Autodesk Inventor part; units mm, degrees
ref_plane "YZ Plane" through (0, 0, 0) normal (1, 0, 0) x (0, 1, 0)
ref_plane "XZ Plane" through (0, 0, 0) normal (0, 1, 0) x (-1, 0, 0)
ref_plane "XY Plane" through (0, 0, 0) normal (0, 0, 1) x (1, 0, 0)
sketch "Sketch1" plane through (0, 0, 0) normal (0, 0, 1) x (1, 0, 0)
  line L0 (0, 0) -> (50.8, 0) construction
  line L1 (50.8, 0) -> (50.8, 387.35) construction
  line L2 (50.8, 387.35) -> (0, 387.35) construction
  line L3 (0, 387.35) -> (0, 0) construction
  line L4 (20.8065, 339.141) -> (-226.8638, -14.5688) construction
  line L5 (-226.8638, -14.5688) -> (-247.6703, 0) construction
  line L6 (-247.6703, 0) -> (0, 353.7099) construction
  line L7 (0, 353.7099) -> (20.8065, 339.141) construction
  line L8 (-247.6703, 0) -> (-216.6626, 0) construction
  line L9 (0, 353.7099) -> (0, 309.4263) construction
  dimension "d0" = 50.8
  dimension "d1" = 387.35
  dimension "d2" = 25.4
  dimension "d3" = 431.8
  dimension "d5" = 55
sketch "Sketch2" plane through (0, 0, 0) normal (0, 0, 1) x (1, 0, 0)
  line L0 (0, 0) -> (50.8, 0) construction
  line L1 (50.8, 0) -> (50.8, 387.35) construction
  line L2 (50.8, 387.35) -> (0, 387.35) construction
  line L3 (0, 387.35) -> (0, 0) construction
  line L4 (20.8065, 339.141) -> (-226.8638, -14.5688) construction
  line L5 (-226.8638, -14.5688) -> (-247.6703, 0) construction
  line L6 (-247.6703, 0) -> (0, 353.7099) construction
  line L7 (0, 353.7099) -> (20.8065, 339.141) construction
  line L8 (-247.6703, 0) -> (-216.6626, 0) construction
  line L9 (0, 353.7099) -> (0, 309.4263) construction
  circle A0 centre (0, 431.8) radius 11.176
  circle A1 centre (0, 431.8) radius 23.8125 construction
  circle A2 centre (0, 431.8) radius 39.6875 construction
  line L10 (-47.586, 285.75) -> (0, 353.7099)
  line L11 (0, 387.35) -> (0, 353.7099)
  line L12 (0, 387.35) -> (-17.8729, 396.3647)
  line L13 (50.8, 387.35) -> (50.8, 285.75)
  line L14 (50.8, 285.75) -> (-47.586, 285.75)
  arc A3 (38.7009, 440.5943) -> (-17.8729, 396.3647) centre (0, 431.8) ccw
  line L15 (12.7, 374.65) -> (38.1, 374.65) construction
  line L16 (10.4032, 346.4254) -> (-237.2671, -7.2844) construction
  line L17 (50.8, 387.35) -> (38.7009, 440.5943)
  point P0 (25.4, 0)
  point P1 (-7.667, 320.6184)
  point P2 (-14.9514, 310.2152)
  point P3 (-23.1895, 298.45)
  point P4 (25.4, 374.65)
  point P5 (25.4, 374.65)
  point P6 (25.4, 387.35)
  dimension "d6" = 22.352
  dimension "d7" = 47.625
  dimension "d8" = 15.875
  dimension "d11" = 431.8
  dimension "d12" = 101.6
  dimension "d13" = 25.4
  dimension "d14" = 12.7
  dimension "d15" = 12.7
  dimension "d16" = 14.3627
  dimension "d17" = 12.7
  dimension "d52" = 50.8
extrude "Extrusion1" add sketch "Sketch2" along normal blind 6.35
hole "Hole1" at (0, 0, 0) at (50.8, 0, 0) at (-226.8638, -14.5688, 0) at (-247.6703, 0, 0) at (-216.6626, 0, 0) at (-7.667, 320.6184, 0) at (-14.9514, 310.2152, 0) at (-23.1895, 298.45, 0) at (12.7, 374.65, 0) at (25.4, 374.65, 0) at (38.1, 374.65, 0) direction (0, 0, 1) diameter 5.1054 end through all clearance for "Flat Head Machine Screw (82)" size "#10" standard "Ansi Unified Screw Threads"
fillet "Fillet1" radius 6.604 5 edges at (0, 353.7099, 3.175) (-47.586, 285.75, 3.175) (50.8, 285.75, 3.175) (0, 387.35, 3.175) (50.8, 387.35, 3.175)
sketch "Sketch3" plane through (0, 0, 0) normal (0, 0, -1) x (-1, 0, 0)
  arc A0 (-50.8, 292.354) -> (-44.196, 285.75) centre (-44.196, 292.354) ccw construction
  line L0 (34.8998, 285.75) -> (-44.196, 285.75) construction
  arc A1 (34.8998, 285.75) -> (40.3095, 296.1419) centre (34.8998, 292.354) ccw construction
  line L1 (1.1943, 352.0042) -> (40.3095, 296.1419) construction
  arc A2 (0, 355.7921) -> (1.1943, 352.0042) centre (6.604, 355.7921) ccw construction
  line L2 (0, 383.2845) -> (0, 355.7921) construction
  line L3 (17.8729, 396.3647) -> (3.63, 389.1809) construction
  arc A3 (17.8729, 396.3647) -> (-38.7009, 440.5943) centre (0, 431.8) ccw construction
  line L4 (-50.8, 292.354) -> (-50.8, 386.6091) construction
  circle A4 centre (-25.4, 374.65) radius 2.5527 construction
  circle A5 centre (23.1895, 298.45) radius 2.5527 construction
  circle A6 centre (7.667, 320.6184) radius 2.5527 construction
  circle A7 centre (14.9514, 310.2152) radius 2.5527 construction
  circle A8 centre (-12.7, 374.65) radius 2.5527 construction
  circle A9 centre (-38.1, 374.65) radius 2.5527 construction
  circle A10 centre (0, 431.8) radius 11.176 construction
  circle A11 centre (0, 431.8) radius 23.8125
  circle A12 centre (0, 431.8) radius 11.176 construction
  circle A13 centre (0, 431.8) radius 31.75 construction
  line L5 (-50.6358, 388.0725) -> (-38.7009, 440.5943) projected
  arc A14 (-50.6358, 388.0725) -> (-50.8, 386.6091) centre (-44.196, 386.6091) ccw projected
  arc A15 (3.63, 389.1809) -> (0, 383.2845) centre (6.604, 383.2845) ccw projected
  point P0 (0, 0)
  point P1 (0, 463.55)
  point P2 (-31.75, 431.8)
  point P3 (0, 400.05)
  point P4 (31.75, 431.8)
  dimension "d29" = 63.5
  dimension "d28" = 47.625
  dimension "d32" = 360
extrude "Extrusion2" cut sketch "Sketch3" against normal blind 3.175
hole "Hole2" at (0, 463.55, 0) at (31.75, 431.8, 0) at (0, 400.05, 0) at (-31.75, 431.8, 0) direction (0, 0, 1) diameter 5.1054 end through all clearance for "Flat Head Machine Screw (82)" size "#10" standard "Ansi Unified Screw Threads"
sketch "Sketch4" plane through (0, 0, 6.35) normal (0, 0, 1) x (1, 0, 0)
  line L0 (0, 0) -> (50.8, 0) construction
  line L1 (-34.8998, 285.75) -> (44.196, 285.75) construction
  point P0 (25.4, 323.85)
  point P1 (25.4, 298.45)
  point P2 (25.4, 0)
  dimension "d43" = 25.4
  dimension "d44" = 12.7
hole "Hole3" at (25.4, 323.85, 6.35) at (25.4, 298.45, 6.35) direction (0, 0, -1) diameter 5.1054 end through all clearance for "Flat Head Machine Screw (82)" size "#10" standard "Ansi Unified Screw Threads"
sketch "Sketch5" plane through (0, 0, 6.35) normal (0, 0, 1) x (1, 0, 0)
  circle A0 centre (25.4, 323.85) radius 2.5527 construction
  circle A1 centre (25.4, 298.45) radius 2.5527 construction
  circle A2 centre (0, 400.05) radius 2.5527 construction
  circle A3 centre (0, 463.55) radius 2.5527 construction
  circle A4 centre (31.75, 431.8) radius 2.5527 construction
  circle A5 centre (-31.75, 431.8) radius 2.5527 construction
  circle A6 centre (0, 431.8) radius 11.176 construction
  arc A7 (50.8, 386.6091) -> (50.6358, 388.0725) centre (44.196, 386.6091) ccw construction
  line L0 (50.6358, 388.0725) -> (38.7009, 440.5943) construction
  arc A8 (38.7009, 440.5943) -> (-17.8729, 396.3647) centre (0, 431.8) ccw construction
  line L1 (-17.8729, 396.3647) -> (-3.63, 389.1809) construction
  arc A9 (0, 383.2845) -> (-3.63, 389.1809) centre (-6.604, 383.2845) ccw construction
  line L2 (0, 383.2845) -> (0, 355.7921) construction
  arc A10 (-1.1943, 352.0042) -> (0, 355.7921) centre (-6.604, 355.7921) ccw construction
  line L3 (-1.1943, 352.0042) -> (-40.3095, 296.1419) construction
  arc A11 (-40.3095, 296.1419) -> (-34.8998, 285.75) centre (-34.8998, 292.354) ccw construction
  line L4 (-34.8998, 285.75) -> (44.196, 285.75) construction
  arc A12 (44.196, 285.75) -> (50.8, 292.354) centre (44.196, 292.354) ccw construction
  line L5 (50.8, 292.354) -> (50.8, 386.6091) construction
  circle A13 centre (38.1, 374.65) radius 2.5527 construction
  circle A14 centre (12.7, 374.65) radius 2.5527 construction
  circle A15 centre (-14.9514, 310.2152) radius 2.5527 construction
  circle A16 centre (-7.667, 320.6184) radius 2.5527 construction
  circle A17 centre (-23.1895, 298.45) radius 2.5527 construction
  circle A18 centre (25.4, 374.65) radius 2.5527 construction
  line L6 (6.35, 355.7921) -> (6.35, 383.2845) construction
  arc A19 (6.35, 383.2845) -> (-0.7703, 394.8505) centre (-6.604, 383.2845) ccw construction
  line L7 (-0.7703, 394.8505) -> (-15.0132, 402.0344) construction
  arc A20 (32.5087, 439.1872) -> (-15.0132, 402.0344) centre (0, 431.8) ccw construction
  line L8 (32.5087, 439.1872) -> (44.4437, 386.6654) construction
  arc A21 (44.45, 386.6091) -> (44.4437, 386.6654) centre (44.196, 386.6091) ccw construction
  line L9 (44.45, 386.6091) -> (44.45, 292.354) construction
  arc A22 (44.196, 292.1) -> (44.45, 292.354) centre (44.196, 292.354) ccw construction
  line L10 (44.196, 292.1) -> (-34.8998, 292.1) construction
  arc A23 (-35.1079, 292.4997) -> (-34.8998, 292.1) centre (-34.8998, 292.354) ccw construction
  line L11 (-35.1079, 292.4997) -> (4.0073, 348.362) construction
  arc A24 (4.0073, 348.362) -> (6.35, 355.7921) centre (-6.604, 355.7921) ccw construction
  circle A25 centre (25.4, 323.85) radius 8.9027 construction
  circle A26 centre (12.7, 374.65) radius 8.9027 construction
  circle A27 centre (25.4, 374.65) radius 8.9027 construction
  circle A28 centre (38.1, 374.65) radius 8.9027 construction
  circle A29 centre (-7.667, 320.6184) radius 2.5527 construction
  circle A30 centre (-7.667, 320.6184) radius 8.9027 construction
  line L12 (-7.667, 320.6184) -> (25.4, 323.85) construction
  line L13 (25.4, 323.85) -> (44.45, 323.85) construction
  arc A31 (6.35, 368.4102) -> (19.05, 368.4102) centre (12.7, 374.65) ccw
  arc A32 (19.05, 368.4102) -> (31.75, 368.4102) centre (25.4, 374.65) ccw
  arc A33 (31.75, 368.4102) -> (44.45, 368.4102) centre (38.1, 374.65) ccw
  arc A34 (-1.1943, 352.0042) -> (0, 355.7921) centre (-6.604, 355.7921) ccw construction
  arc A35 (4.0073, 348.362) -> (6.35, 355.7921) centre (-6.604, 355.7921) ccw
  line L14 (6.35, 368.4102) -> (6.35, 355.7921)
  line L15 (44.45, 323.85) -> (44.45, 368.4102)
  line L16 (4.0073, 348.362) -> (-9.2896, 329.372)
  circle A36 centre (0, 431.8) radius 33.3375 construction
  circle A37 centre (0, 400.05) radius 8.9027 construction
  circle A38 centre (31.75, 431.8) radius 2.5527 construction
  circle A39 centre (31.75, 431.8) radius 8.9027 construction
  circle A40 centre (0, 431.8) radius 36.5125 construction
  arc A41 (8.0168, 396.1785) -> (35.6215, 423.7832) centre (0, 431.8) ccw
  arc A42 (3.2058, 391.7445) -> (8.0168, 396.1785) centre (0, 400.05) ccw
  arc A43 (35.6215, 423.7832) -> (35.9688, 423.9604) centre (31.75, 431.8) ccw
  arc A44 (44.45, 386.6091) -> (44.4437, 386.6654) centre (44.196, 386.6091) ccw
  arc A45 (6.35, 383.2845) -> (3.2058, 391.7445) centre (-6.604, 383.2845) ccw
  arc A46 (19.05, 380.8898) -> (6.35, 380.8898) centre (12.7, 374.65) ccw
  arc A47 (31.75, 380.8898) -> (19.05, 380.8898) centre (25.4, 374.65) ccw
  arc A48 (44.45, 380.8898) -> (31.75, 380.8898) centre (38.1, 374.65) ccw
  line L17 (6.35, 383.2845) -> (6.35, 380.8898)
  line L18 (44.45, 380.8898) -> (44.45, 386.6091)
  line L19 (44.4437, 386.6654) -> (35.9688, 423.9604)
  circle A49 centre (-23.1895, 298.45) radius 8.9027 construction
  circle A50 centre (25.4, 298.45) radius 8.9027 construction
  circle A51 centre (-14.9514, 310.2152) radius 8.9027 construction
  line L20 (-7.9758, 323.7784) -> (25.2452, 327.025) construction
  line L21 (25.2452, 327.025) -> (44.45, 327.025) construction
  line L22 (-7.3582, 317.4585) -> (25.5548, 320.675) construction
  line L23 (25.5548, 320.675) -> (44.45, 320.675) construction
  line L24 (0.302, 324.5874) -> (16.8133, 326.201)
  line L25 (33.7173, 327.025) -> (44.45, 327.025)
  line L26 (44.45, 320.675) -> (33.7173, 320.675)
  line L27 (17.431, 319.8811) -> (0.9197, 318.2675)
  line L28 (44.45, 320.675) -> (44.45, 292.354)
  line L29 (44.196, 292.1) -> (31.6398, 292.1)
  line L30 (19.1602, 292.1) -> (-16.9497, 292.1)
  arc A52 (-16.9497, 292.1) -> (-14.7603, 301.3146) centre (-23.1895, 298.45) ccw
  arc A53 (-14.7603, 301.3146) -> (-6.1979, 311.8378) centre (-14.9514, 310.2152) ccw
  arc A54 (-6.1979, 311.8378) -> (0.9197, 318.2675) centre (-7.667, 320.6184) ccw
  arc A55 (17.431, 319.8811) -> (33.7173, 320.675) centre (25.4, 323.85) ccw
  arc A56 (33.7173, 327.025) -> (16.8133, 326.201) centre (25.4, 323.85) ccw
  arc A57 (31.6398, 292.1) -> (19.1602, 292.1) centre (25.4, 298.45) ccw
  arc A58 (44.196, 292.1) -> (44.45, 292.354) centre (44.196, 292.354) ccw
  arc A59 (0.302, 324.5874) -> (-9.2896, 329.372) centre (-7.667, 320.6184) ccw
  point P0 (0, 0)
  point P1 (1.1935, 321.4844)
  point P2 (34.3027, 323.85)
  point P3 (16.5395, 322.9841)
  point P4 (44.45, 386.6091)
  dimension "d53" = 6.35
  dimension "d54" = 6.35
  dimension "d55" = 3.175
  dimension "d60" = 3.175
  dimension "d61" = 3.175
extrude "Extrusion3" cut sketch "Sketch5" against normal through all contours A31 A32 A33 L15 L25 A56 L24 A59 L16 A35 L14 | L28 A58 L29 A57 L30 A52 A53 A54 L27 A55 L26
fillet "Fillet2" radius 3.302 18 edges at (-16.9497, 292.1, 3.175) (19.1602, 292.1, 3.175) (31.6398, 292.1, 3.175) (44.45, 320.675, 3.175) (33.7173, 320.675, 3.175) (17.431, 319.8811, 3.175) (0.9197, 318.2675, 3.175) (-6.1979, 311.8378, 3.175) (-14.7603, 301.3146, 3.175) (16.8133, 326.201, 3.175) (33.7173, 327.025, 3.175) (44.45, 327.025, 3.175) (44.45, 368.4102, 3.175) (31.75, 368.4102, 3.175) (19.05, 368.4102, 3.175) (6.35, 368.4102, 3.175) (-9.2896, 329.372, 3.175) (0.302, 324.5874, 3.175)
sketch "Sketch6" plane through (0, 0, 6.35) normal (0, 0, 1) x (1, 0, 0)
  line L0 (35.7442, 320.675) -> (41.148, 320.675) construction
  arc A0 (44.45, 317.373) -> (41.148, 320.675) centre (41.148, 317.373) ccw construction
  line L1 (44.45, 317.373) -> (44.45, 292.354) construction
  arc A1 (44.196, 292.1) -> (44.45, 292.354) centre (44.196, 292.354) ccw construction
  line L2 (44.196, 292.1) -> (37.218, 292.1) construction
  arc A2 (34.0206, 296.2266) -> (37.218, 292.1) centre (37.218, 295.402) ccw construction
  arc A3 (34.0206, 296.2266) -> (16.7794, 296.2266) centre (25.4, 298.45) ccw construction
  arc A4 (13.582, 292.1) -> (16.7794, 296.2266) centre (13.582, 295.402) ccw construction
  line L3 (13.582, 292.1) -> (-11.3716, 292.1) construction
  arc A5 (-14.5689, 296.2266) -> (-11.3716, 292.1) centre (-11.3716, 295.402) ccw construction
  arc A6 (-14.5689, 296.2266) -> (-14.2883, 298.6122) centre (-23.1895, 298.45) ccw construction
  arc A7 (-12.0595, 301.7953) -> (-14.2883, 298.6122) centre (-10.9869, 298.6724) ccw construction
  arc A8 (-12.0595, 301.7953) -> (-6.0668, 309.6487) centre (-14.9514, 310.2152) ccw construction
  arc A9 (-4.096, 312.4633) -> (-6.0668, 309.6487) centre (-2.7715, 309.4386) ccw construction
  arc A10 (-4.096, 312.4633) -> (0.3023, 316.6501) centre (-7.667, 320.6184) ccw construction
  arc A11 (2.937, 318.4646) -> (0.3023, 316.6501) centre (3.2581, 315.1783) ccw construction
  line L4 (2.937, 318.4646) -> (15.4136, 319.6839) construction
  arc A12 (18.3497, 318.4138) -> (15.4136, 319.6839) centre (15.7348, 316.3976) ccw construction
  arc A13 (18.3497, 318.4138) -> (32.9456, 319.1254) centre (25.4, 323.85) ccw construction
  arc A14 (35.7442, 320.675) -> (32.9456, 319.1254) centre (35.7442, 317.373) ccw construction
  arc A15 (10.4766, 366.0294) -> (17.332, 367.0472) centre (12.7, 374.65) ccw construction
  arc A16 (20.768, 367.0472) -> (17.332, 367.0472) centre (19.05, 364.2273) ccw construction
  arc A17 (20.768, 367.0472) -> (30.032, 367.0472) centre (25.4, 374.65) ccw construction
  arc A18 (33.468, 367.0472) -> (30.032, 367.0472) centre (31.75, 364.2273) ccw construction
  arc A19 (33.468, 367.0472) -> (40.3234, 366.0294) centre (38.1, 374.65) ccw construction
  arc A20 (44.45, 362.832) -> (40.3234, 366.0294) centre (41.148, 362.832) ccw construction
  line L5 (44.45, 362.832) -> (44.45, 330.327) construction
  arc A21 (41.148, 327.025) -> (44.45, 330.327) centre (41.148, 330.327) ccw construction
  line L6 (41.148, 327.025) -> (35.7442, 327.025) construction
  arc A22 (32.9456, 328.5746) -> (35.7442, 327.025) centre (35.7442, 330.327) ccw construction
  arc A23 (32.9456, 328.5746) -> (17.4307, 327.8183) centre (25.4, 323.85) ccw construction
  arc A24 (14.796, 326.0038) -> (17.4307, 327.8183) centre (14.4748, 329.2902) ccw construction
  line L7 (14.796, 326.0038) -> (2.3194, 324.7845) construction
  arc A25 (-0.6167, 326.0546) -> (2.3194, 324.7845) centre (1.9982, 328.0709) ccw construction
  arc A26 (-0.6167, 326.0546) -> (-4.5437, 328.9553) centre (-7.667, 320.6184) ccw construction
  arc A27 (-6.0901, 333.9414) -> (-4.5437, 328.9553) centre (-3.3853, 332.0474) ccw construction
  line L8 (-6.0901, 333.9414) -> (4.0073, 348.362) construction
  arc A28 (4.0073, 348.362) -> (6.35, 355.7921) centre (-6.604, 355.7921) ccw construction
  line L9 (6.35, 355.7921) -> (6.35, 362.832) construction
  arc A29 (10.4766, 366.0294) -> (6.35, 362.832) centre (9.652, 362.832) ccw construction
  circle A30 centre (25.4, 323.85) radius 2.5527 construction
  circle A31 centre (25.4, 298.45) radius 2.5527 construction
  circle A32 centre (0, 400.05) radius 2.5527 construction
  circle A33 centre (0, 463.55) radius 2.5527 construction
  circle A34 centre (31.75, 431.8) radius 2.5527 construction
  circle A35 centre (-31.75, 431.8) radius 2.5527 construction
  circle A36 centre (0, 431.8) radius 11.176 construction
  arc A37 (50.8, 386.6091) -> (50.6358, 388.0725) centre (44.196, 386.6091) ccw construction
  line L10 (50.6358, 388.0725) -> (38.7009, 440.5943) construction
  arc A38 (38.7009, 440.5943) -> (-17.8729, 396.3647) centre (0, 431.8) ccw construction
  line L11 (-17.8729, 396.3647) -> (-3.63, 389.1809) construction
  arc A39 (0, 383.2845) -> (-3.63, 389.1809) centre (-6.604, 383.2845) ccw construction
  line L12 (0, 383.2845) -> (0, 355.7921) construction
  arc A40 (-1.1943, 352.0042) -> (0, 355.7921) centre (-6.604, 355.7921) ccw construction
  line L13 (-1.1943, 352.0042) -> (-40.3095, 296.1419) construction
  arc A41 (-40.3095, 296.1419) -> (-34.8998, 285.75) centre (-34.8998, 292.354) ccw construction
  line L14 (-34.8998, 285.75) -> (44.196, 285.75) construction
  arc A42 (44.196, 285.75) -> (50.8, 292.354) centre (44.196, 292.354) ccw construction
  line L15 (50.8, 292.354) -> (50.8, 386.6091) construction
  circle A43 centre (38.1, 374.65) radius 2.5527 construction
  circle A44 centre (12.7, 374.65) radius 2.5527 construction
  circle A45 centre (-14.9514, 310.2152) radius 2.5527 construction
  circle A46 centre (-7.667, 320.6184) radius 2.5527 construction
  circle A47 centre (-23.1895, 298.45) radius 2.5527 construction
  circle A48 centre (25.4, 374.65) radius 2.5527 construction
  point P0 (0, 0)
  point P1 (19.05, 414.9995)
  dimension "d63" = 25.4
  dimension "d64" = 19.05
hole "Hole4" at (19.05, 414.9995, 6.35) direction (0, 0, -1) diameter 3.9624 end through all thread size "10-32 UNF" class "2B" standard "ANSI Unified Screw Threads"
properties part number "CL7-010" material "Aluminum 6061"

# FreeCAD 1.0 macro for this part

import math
import FreeCAD as App
import Part
import Sketcher
from FreeCAD import Vector
Q = App.Units.Quantity


def edges_at(feature, points):
    """Names of the edges that pass closest to the given points."""
    edges = feature.Shape.Edges
    near = lambda p: min(range(len(edges)), key=lambda i: edges[i].distToShape(Part.Vertex(*p))[0])
    return sorted({f"Edge{near(p) + 1}" for p in points})

doc = App.newDocument("Part")
body = doc.addObject("PartDesign::Body", "Body")

sketch1 = body.newObject("Sketcher::SketchObject", "Sketch")
sketch1.AttachmentSupport = (doc.getObject("XY_Plane"), [""])
sketch1.MapMode = "FlatFace"
sketch1.addGeometry(Part.LineSegment(Vector(0, 354, 0), Vector(-48, 286, 0)), False)
sketch1.addGeometry(Part.LineSegment(Vector(-48, 286, 0), Vector(51, 286, 0)), False)
sketch1.addGeometry(Part.LineSegment(Vector(51, 286, 0), Vector(51, 387, 0)), False)
sketch1.addGeometry(Part.LineSegment(Vector(51, 387, 0), Vector(39, 441, 0)), False)
sketch1.addGeometry(Part.ArcOfCircle(Part.Circle(Vector(0, 432, 0), Vector(0, 0, 1), 40), math.radians(13), math.radians(243)), False)
sketch1.addGeometry(Part.LineSegment(Vector(-18, 396, 0), Vector(0, 387, 0)), False)
sketch1.addGeometry(Part.LineSegment(Vector(0, 387, 0), Vector(0, 354, 0)), False)
sketch1.addGeometry(Part.Circle(Vector(0, 432, 0), Vector(0, 0, 1), 11), False)
sketch1.addConstraint(Sketcher.Constraint("Coincident", 0, 2, 1, 1))
sketch1.addConstraint(Sketcher.Constraint("Coincident", 1, 2, 2, 1))
sketch1.addConstraint(Sketcher.Constraint("Coincident", 2, 2, 3, 1))
sketch1.addConstraint(Sketcher.Constraint("Tangent", 3, 2, 4, 1))
sketch1.addConstraint(Sketcher.Constraint("Tangent", 4, 2, 5, 1))
sketch1.addConstraint(Sketcher.Constraint("Coincident", 5, 2, 6, 1))
sketch1.addConstraint(Sketcher.Constraint("Coincident", 6, 2, 0, 1))
sketch1.addConstraint(Sketcher.Constraint("Horizontal", 1))
sketch1.addConstraint(Sketcher.Constraint("Vertical", 2))
sketch1.addConstraint(Sketcher.Constraint("Vertical", 6))
sketch1.addConstraint(Sketcher.Constraint("Coincident", 7, 3, 4, 3))
sketch1.addConstraint(Sketcher.Constraint("PointOnObject", 4, 3, -2))
sketch1.addConstraint(Sketcher.Constraint("PointOnObject", 5, 2, -2))
sketch1.addConstraint(Sketcher.Constraint("Horizontal", 2, 2, 5, 2))
sketch1.addConstraint(Sketcher.Constraint("Diameter", 7, Q("0.88 in")))
sketch1.addConstraint(Sketcher.Constraint("DistanceY", 2, 1, 2, 2, Q("4 in")))
sketch1.addConstraint(Sketcher.Constraint("DistanceY", -1, 1, 4, 3, Q("17 in")))
sketch1.addConstraint(Sketcher.Constraint("DistanceX", -1, 1, 1, 2, Q("2 in")))
sketch1.addConstraint(Sketcher.Constraint("Angle", 0, Q("-125 deg")))
sketch1.addConstraint(Sketcher.Constraint("Radius", 4, Q("1.5625 in")))
sketch1.addConstraint(Sketcher.Constraint("DistanceY", -1, 1, 0, 2, Q("11.25 in")))
sketch1.addConstraint(Sketcher.Constraint("DistanceX", 1, 1, 1, 2, Q("98.386 mm")))
pad1 = body.newObject("PartDesign::Pad", "Pad")
pad1.Profile = sketch1
pad1.Length = Q("0.25 in")

sketch2 = body.newObject("Sketcher::SketchObject", "Sketch001")
sketch2.AttachmentSupport = (doc.getObject("XY_Plane"), [""])
sketch2.MapMode = "FlatFace"
sketch2.addGeometry(Part.Circle(Vector(0, 0, 0), Vector(0, 0, 1), 2.6), False)
sketch2.addGeometry(Part.Circle(Vector(50.8, 0, 0), Vector(0, 0, 1), 2.6), False)
sketch2.addGeometry(Part.Circle(Vector(-226.9, -14.6, 0), Vector(0, 0, 1), 2.6), False)
sketch2.addGeometry(Part.Circle(Vector(-247.7, 0, 0), Vector(0, 0, 1), 2.6), False)
sketch2.addGeometry(Part.Circle(Vector(-216.7, 0, 0), Vector(0, 0, 1), 2.6), False)
sketch2.addGeometry(Part.Circle(Vector(-7.7, 320.6, 0), Vector(0, 0, 1), 2.6), False)
sketch2.addGeometry(Part.Circle(Vector(-15, 310.2, 0), Vector(0, 0, 1), 2.6), False)
sketch2.addGeometry(Part.Circle(Vector(-23.2, 298.4, 0), Vector(0, 0, 1), 2.6), False)
sketch2.addGeometry(Part.Circle(Vector(12.7, 374.6, 0), Vector(0, 0, 1), 2.6), False)
sketch2.addGeometry(Part.Circle(Vector(25.4, 374.6, 0), Vector(0, 0, 1), 2.6), False)
sketch2.addGeometry(Part.Circle(Vector(38.1, 374.6, 0), Vector(0, 0, 1), 2.6), False)
sketch2.addConstraint(Sketcher.Constraint("Coincident", 0, 3, -1, 1))
sketch2.addConstraint(Sketcher.Constraint("Equal", 0, 1))
sketch2.addConstraint(Sketcher.Constraint("Equal", 1, 2))
sketch2.addConstraint(Sketcher.Constraint("Equal", 2, 3))
sketch2.addConstraint(Sketcher.Constraint("Equal", 3, 4))
sketch2.addConstraint(Sketcher.Constraint("Equal", 4, 5))
sketch2.addConstraint(Sketcher.Constraint("Equal", 5, 6))
sketch2.addConstraint(Sketcher.Constraint("Equal", 6, 7))
sketch2.addConstraint(Sketcher.Constraint("Equal", 7, 8))
sketch2.addConstraint(Sketcher.Constraint("Equal", 8, 9))
sketch2.addConstraint(Sketcher.Constraint("Equal", 9, 10))
sketch2.addConstraint(Sketcher.Constraint("PointOnObject", 1, 3, -1))
sketch2.addConstraint(Sketcher.Constraint("PointOnObject", 3, 3, -1))
sketch2.addConstraint(Sketcher.Constraint("PointOnObject", 4, 3, -1))
sketch2.addConstraint(Sketcher.Constraint("Horizontal", 8, 3, 9, 3))
sketch2.addConstraint(Sketcher.Constraint("Horizontal", 9, 3, 10, 3))
sketch2.addConstraint(Sketcher.Constraint("Diameter", 0, Q("0.201 in")))
sketch2.addConstraint(Sketcher.Constraint("DistanceX", -1, 1, 1, 3, Q("2 in")))
sketch2.addConstraint(Sketcher.Constraint("DistanceX", -1, 1, 9, 3, Q("1 in")))
sketch2.addConstraint(Sketcher.Constraint("DistanceY", 7, 3, 8, 3, Q("3 in")))
sketch2.addConstraint(Sketcher.Constraint("DistanceX", 8, 3, 10, 3, Q("1 in")))
sketch2.addConstraint(Sketcher.Constraint("DistanceX", -1, 1, 8, 3, Q("0.5 in")))
sketch2.addConstraint(Sketcher.Constraint("DistanceY", -1, 1, 7, 3, Q("11.75 in")))
sketch2.addConstraint(Sketcher.Constraint("DistanceX", 2, 3, 6, 3, Q("8.343 in")))
sketch2.addConstraint(Sketcher.Constraint("DistanceX", 3, 3, -1, 1, Q("9.7508 in")))
sketch2.addConstraint(Sketcher.Constraint("DistanceY", -1, 1, 6, 3, Q("12.2132 in")))
sketch2.addConstraint(Sketcher.Constraint("DistanceX", 2, 3, 5, 3, Q("8.6298 in")))
sketch2.addConstraint(Sketcher.Constraint("DistanceX", 2, 3, -1, 1, Q("226.8638 mm")))
sketch2.addConstraint(Sketcher.Constraint("DistanceY", 2, 3, -1, 1, Q("14.5688 mm")))
sketch2.addConstraint(Sketcher.Constraint("DistanceX", 4, 3, -1, 1, Q("216.6626 mm")))
sketch2.addConstraint(Sketcher.Constraint("DistanceY", -1, 1, 5, 3, Q("320.6184 mm")))
sketch2.addConstraint(Sketcher.Constraint("DistanceX", 7, 3, -1, 1, Q("23.1895 mm")))
doc.recompute()
hole = body.newObject("PartDesign::Hole", "Hole")
hole.Profile = sketch2
hole.ThreadType = "None"
hole.Diameter = Q("0.201 in")
hole.DepthType = "ThroughAll"
hole.Reversed = True
doc.recompute()

fillet = body.newObject("PartDesign::Fillet", "Fillet")
fillet.Base = (hole, edges_at(hole, [
    (0, 353.71, 3.175),
    (-47.586, 285.75, 3.175),
    (50.8, 285.75, 3.175),
    (0, 387.35, 3.175),
    (50.8, 387.35, 3.175),
]))
fillet.Radius = Q("0.26 in")

sketch3 = body.newObject("Sketcher::SketchObject", "Sketch002")
sketch3.AttachmentSupport = (doc.getObject("XY_Plane"), [""])
sketch3.MapMode = "FlatFace"
sketch3.addGeometry(Part.Circle(Vector(0, 432, 0), Vector(0, 0, 1), 24), False)
sketch3.addConstraint(Sketcher.Constraint("PointOnObject", 0, 3, -2))
sketch3.addConstraint(Sketcher.Constraint("Diameter", 0, Q("1.875 in")))
sketch3.addConstraint(Sketcher.Constraint("DistanceY", -1, 1, 0, 3, Q("17 in")))
pocket1 = body.newObject("PartDesign::Pocket", "Pocket")
pocket1.Profile = sketch3
pocket1.Length = Q("0.125 in")
pocket1.Reversed = True

sketch4 = body.newObject("Sketcher::SketchObject", "Sketch003")
sketch4.AttachmentSupport = (doc.getObject("XY_Plane"), [""])
sketch4.MapMode = "FlatFace"
sketch4.addGeometry(Part.Circle(Vector(0, 463.6, 0), Vector(0, 0, 1), 2.6), False)
sketch4.addGeometry(Part.Circle(Vector(31.8, 431.8, 0), Vector(0, 0, 1), 2.6), False)
sketch4.addGeometry(Part.Circle(Vector(0, 400.1, 0), Vector(0, 0, 1), 2.6), False)
sketch4.addGeometry(Part.Circle(Vector(-31.8, 431.8, 0), Vector(0, 0, 1), 2.6), False)
sketch4.addConstraint(Sketcher.Constraint("Equal", 0, 1))
sketch4.addConstraint(Sketcher.Constraint("Equal", 1, 2))
sketch4.addConstraint(Sketcher.Constraint("Equal", 2, 3))
sketch4.addConstraint(Sketcher.Constraint("Symmetric", 1, 3, 3, 3, -2))
sketch4.addConstraint(Sketcher.Constraint("PointOnObject", 0, 3, -2))
sketch4.addConstraint(Sketcher.Constraint("PointOnObject", 2, 3, -2))
sketch4.addConstraint(Sketcher.Constraint("Diameter", 0, Q("0.201 in")))
sketch4.addConstraint(Sketcher.Constraint("DistanceY", -1, 1, 1, 3, Q("17 in")))
sketch4.addConstraint(Sketcher.Constraint("DistanceY", 2, 3, 0, 3, Q("2.5 in")))
sketch4.addConstraint(Sketcher.Constraint("DistanceX", 3, 3, 1, 3, Q("2.5 in")))
sketch4.addConstraint(Sketcher.Constraint("DistanceY", -1, 1, 0, 3, Q("18.25 in")))
doc.recompute()
hole2 = body.newObject("PartDesign::Hole", "Hole001")
hole2.Profile = sketch4
hole2.ThreadType = "None"
hole2.Diameter = Q("0.201 in")
hole2.DepthType = "ThroughAll"
hole2.Reversed = True

sketch5 = body.newObject("Sketcher::SketchObject", "Sketch004")
sketch5.AttachmentSupport = (doc.getObject("XY_Plane"), [""])
sketch5.MapMode = "FlatFace"
sketch5.AttachmentOffset = App.Placement(Vector(0, 0, 0.25 * 25.4), App.Rotation())
sketch5.addGeometry(Part.Circle(Vector(25.4, 323.9, 0), Vector(0, 0, 1), 2.6), False)
sketch5.addGeometry(Part.Circle(Vector(25.4, 298.4, 0), Vector(0, 0, 1), 2.6), False)
sketch5.addConstraint(Sketcher.Constraint("Equal", 0, 1))
sketch5.addConstraint(Sketcher.Constraint("Vertical", 0, 3, 1, 3))
sketch5.addConstraint(Sketcher.Constraint("Diameter", 0, Q("0.201 in")))
sketch5.addConstraint(Sketcher.Constraint("DistanceX", -1, 1, 0, 3, Q("1 in")))
sketch5.addConstraint(Sketcher.Constraint("DistanceY", 1, 3, 0, 3, Q("1 in")))
sketch5.addConstraint(Sketcher.Constraint("DistanceY", -1, 1, 0, 3, Q("12.75 in")))
doc.recompute()
hole3 = body.newObject("PartDesign::Hole", "Hole002")
hole3.Profile = sketch5
hole3.ThreadType = "None"
hole3.Diameter = Q("0.201 in")
hole3.DepthType = "ThroughAll"

sketch6 = body.newObject("Sketcher::SketchObject", "Sketch005")
sketch6.AttachmentSupport = (doc.getObject("XY_Plane"), [""])
sketch6.MapMode = "FlatFace"
sketch6.AttachmentOffset = App.Placement(Vector(0, 0, 0.25 * 25.4), App.Rotation())
sketch6.addGeometry(Part.ArcOfCircle(Part.Circle(Vector(12.7, 374.65, 0), Vector(0, 0, 1), 8.902674), math.radians(-135.501504), math.radians(-44.498496)), False)
sketch6.addGeometry(Part.LineSegment(Vector(6.35, 368.4102, 0), Vector(6.35, 355.7921, 0)), False)
sketch6.addGeometry(Part.ArcOfCircle(Part.Circle(Vector(-6.604, 355.7921, 0), Vector(0, 0, 1), 12.953998), math.radians(-34.999956), math.radians(0)), False)
sketch6.addGeometry(Part.LineSegment(Vector(4.0073, 348.362, 0), Vector(-9.2896, 329.372, 0)), False)
sketch6.addGeometry(Part.ArcOfCircle(Part.Circle(Vector(-7.667, 320.6184, 0), Vector(0, 0, 1), 8.9027), math.radians(26.475828), math.radians(100.501368)), False)
sketch6.addGeometry(Part.LineSegment(Vector(0.302, 324.5874, 0), Vector(16.8133, 326.201, 0)), False)
sketch6.addGeometry(Part.ArcOfCircle(Part.Circle(Vector(25.4, 323.85, 0), Vector(0, 0, 1), 8.902702), math.radians(20.893579), math.radians(164.687928)), False)
sketch6.addGeometry(Part.LineSegment(Vector(33.7173, 327.025, 0), Vector(44.45, 327.025, 0)), False)
sketch6.addGeometry(Part.LineSegment(Vector(44.45, 327.025, 0), Vector(44.45, 368.4102, 0)), False)
sketch6.addGeometry(Part.ArcOfCircle(Part.Circle(Vector(38.1, 374.65, 0), Vector(0, 0, 1), 8.902674), math.radians(-135.501504), math.radians(-44.498496)), False)
sketch6.addGeometry(Part.ArcOfCircle(Part.Circle(Vector(25.4, 374.65, 0), Vector(0, 0, 1), 8.902674), math.radians(-135.501504), math.radians(-44.498496)), False)
sketch6.addGeometry(Part.LineSegment(Vector(44.45, 292.354, 0), Vector(44.45, 320.675, 0)), False)
sketch6.addGeometry(Part.LineSegment(Vector(44.45, 320.675, 0), Vector(33.7173, 320.675, 0)), False)
sketch6.addGeometry(Part.ArcOfCircle(Part.Circle(Vector(25.4, 323.85, 0), Vector(0, 0, 1), 8.9027), math.radians(-153.524748), math.radians(-20.893579)), False)
sketch6.addGeometry(Part.LineSegment(Vector(17.431, 319.8811, 0), Vector(0.9197, 318.2675, 0)), False)
sketch6.addGeometry(Part.ArcOfCircle(Part.Circle(Vector(-7.667, 320.6184, 0), Vector(0, 0, 1), 8.9027), math.radians(-80.501704), math.radians(-15.311451)), False)
sketch6.addGeometry(Part.ArcOfCircle(Part.Circle(Vector(-14.9514, 310.2152, 0), Vector(0, 0, 1), 8.902651), math.radians(-88.770022), math.radians(10.501485)), False)
sketch6.addGeometry(Part.ArcOfCircle(Part.Circle(Vector(-23.1895, 298.45, 0), Vector(0, 0, 1), 8.902674), math.radians(-45.501504), math.radians(18.769941)), False)
sketch6.addGeometry(Part.LineSegment(Vector(-16.9497, 292.1, 0), Vector(19.1602, 292.1, 0)), False)
sketch6.addGeometry(Part.ArcOfCircle(Part.Circle(Vector(25.4, 298.45, 0), Vector(0, 0, 1), 8.902674), math.radians(-45.501504), math.radians(225.501504)), False)
sketch6.addGeometry(Part.LineSegment(Vector(31.6398, 292.1, 0), Vector(44.196, 292.1, 0)), False)
sketch6.addGeometry(Part.ArcOfCircle(Part.Circle(Vector(44.196, 292.354, 0), Vector(0, 0, 1), 0.254), math.radians(-90), math.radians(0)), False)
sketch6.addConstraint(Sketcher.Constraint("Coincident", 0, 1, 1, 1))
sketch6.addConstraint(Sketcher.Constraint("Coincident", 1, 2, 2, 2))
sketch6.addConstraint(Sketcher.Constraint("Coincident", 2, 1, 3, 1))
sketch6.addConstraint(Sketcher.Constraint("Coincident", 3, 2, 4, 2))
sketch6.addConstraint(Sketcher.Constraint("Coincident", 4, 1, 5, 1))
sketch6.addConstraint(Sketcher.Constraint("Coincident", 5, 2, 6, 2))
sketch6.addConstraint(Sketcher.Constraint("Coincident", 6, 1, 7, 1))
sketch6.addConstraint(Sketcher.Constraint("Coincident", 7, 2, 8, 1))
sketch6.addConstraint(Sketcher.Constraint("Coincident", 8, 2, 9, 2))
sketch6.addConstraint(Sketcher.Constraint("Coincident", 9, 1, 10, 2))
sketch6.addConstraint(Sketcher.Constraint("Coincident", 10, 1, 0, 2))
sketch6.addConstraint(Sketcher.Constraint("Coincident", 11, 2, 12, 1))
sketch6.addConstraint(Sketcher.Constraint("Coincident", 12, 2, 13, 2))
sketch6.addConstraint(Sketcher.Constraint("Coincident", 13, 1, 14, 1))
sketch6.addConstraint(Sketcher.Constraint("Coincident", 14, 2, 15, 2))
sketch6.addConstraint(Sketcher.Constraint("Coincident", 15, 1, 16, 2))
sketch6.addConstraint(Sketcher.Constraint("Coincident", 16, 1, 17, 2))
sketch6.addConstraint(Sketcher.Constraint("Coincident", 17, 1, 18, 1))
sketch6.addConstraint(Sketcher.Constraint("Coincident", 18, 2, 19, 2))
sketch6.addConstraint(Sketcher.Constraint("Coincident", 19, 1, 20, 1))
sketch6.addConstraint(Sketcher.Constraint("Coincident", 20, 2, 21, 1))
sketch6.addConstraint(Sketcher.Constraint("Coincident", 21, 2, 11, 1))
sketch6.addConstraint(Sketcher.Constraint("Vertical", 1))
sketch6.addConstraint(Sketcher.Constraint("Horizontal", 7))
sketch6.addConstraint(Sketcher.Constraint("Vertical", 8))
sketch6.addConstraint(Sketcher.Constraint("Vertical", 11))
sketch6.addConstraint(Sketcher.Constraint("Horizontal", 12))
sketch6.addConstraint(Sketcher.Constraint("Horizontal", 18))
sketch6.addConstraint(Sketcher.Constraint("Horizontal", 20))
sketch6.addConstraint(Sketcher.Constraint("Coincident", 13, 3, 6, 3))
sketch6.addConstraint(Sketcher.Constraint("Coincident", 15, 3, 4, 3))
sketch6.addConstraint(Sketcher.Constraint("DistanceX", -1, 1, 0, 1, Q("0.25 in")))
sketch6.addConstraint(Sketcher.Constraint("Radius", 2, Q("0.51 in")))
sketch6.addConstraint(Sketcher.Constraint("Radius", 21, Q("0.01 in")))
sketch6.addConstraint(Sketcher.Constraint("DistanceX", 0, 1, 0, 3, Q("0.25 in")))
sketch6.addConstraint(Sketcher.Constraint("DistanceX", 9, 3, 8, 2, Q("0.25 in")))
sketch6.addConstraint(Sketcher.Constraint("DistanceX", 9, 1, 9, 3, Q("0.25 in")))
sketch6.addConstraint(Sketcher.Constraint("DistanceX", 10, 3, 9, 1, Q("0.25 in")))
sketch6.addConstraint(Sketcher.Constraint("DistanceX", 10, 1, 10, 3, Q("0.25 in")))
sketch6.addConstraint(Sketcher.Constraint("DistanceX", 0, 3, 10, 1, Q("0.25 in")))
sketch6.addConstraint(Sketcher.Constraint("DistanceY", 11, 2, 7, 2, Q("0.25 in")))
sketch6.addConstraint(Sketcher.Constraint("DistanceY", 17, 1, 17, 3, Q("0.25 in")))
sketch6.addConstraint(Sketcher.Constraint("DistanceY", 18, 2, 19, 3, Q("0.25 in")))
sketch6.addConstraint(Sketcher.Constraint("DistanceY", 19, 1, 19, 3, Q("0.25 in")))
sketch6.addConstraint(Sketcher.Constraint("DistanceX", -1, 1, 6, 3, Q("1 in")))
sketch6.addConstraint(Sketcher.Constraint("DistanceX", -1, 1, 19, 3, Q("1 in")))
sketch6.addConstraint(Sketcher.Constraint("DistanceY", 6, 3, 0, 3, Q("2 in")))
sketch6.addConstraint(Sketcher.Constraint("DistanceY", 6, 3, 9, 3, Q("2 in")))
sketch6.addConstraint(Sketcher.Constraint("DistanceY", 6, 3, 10, 3, Q("2 in")))
sketch6.addConstraint(Sketcher.Constraint("DistanceY", 17, 3, 6, 3, Q("1 in")))
sketch6.addConstraint(Sketcher.Constraint("DistanceY", 6, 3, 6, 1, Q("0.125 in")))
sketch6.addConstraint(Sketcher.Constraint("DistanceY", -1, 1, 17, 1, Q("11.5 in")))
sketch6.addConstraint(Sketcher.Constraint("Radius", 0, Q("0.3505 in")))
sketch6.addConstraint(Sketcher.Constraint("Radius", 4, Q("0.3505 in")))
sketch6.addConstraint(Sketcher.Constraint("Radius", 6, Q("0.3505 in")))
sketch6.addConstraint(Sketcher.Constraint("Radius", 13, Q("0.3505 in")))
sketch6.addConstraint(Sketcher.Constraint("Radius", 15, Q("0.3505 in")))
sketch6.addConstraint(Sketcher.Constraint("Radius", 16, Q("0.3505 in")))
sketch6.addConstraint(Sketcher.Constraint("Radius", 17, Q("0.3505 in")))
sketch6.addConstraint(Sketcher.Constraint("Radius", 19, Q("0.3505 in")))
sketch6.addConstraint(Sketcher.Constraint("DistanceY", 11, 1, 11, 2, Q("1.115 in")))
sketch6.addConstraint(Sketcher.Constraint("DistanceX", -1, 1, 21, 3, Q("1.74 in")))
sketch6.addConstraint(Sketcher.Constraint("DistanceX", -1, 1, 20, 2, Q("1.74 in")))
sketch6.addConstraint(Sketcher.Constraint("DistanceY", 16, 1, 4, 3, Q("0.76 in")))
sketch6.addConstraint(Sketcher.Constraint("DistanceY", -1, 1, 13, 1, Q("319.881 mm")))
sketch6.addConstraint(Sketcher.Constraint("DistanceX", 15, 1, -1, 1, Q("0.244 in")))
sketch6.addConstraint(Sketcher.Constraint("DistanceY", 4, 1, 2, 1, Q("0.936 in")))
sketch6.addConstraint(Sketcher.Constraint("Distance", 3, Q("0.9127 in")))
sketch6.addConstraint(Sketcher.Constraint("DistanceX", 18, 1, 18, 2, Q("36.11 mm")))
sketch6.addConstraint(Sketcher.Constraint("DistanceY", 1, 2, 1, 1, Q("12.618 mm")))
sketch6.addConstraint(Sketcher.Constraint("DistanceY", -1, 1, 16, 3, Q("12.2132 in")))
sketch6.addConstraint(Sketcher.Constraint("DistanceY", -1, 1, 3, 2, Q("12.9674 in")))
sketch6.addConstraint(Sketcher.Constraint("DistanceX", -1, 1, 4, 1, Q("0.0119 in")))
sketch6.addConstraint(Sketcher.Constraint("DistanceX", -1, 1, 14, 2, Q("0.0362 in")))
sketch6.addConstraint(Sketcher.Constraint("DistanceY", 4, 3, 2, 3, Q("1.3848 in")))
sketch6.addConstraint(Sketcher.Constraint("DistanceX", 4, 3, 5, 2, Q("0.9638 in")))
pocket2 = body.newObject("PartDesign::Pocket", "Pocket001")
pocket2.Profile = sketch6
pocket2.Type = "ThroughAll"
doc.recompute()

fillet2 = body.newObject("PartDesign::Fillet", "Fillet001")
fillet2.Base = (pocket2, edges_at(pocket2, [
    (-16.95, 292.1, 3.175),
    (19.16, 292.1, 3.175),
    (31.64, 292.1, 3.175),
    (44.45, 320.675, 3.175),
    (33.717, 320.675, 3.175),
    (17.431, 319.881, 3.175),
    (0.92, 318.267, 3.175),
    (-6.198, 311.838, 3.175),
    (-14.76, 301.315, 3.175),
    (16.813, 326.201, 3.175),
    (33.717, 327.025, 3.175),
    (44.45, 327.025, 3.175),
    (44.45, 368.41, 3.175),
    (31.75, 368.41, 3.175),
    (19.05, 368.41, 3.175),
    (6.35, 368.41, 3.175),
    (-9.29, 329.372, 3.175),
    (0.302, 324.587, 3.175),
]))
fillet2.Radius = Q("0.13 in")

sketch7 = body.newObject("Sketcher::SketchObject", "Sketch006")
sketch7.AttachmentSupport = (doc.getObject("XY_Plane"), [""])
sketch7.MapMode = "FlatFace"
sketch7.AttachmentOffset = App.Placement(Vector(0, 0, 0.25 * 25.4), App.Rotation())
sketch7.addGeometry(Part.Circle(Vector(19.1, 415, 0), Vector(0, 0, 1), 2), False)
sketch7.addConstraint(Sketcher.Constraint("Diameter", 0, Q("0.156 in")))
sketch7.addConstraint(Sketcher.Constraint("DistanceX", -1, 1, 0, 3, Q("0.75 in")))
sketch7.addConstraint(Sketcher.Constraint("DistanceY", -1, 1, 0, 3, Q("414.9995 mm")))
doc.recompute()
hole4 = body.newObject("PartDesign::Hole", "Hole003")
hole4.Profile = sketch7
hole4.ThreadType = "None"
hole4.Diameter = Q("0.156 in")
hole4.DepthType = "ThroughAll"

doc.recompute()
